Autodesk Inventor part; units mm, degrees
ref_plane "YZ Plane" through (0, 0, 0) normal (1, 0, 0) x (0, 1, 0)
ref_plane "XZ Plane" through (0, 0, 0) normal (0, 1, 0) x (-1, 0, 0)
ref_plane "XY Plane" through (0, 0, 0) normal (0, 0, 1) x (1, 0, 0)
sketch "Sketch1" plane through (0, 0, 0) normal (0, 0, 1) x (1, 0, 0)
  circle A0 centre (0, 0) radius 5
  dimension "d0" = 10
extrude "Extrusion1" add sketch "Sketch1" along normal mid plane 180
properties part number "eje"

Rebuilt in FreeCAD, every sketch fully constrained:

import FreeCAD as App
import Part
import Sketcher
from FreeCAD import Vector
Q = App.Units.Quantity

doc = App.newDocument("Part")
body = doc.addObject("PartDesign::Body", "Body")

sketch1 = body.newObject("Sketcher::SketchObject", "Sketch")
sketch1.AttachmentSupport = (doc.getObject("XY_Plane"), [""])
sketch1.MapMode = "FlatFace"
sketch1.addGeometry(Part.Circle(Vector(0, 0, 0), Vector(0, 0, 1), 5), False)
sketch1.addConstraint(Sketcher.Constraint("Coincident", 0, 3, -1, 1))
sketch1.addConstraint(Sketcher.Constraint("Diameter", 0, Q("10 mm")))
pad1 = body.newObject("PartDesign::Pad", "Pad")
pad1.Profile = sketch1
pad1.Length = 180
pad1.Midplane = True

doc.recompute()
